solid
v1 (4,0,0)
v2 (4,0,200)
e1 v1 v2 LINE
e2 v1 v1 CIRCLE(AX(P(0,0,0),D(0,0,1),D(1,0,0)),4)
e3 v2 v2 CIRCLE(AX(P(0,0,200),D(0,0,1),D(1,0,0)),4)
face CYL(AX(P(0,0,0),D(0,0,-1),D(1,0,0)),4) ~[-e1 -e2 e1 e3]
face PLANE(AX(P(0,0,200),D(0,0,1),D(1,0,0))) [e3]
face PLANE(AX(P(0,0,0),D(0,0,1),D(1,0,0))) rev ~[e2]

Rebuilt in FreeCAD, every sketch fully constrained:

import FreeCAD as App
import Part
import Sketcher
Q = App.Units.Quantity

doc = App.newDocument("Part")
params = doc.addObject("Spreadsheet::Sheet", "Params")
for row, (alias, value) in enumerate([
    ("sketch1_diameter", "8 mm"),
    ("pad1_length", "200 mm"),
], start=1):
    params.set(f"A{row}", alias)
    params.set(f"B{row}", "=" + value)
    params.setAlias(f"B{row}", alias)

body = doc.addObject("PartDesign::Body", "Body")

sketch1 = doc.addObject("Sketcher::SketchObject", "Sketch")
body.addObject(sketch1)
sketch1.AttachmentSupport = (doc.XY_Plane, [""])
sketch1.MapMode = "FlatFace"
sketch1.addGeometry(Part.Circle(App.Vector(0, 0, 0), App.Vector(0, 0, 1), 4), False)
sketch1.addConstraint([
    Sketcher.Constraint("Coincident", 0, 3, -1, 1),
    Sketcher.Constraint("Diameter", 0, Q("8 mm")),
])
sketch1.setExpression("Constraints[1]", "Params.sketch1_diameter")
pad1 = doc.addObject("PartDesign::Pad", "Pad")
body.addObject(pad1)
pad1.Profile = sketch1
pad1.setExpression("Length", "Params.pad1_length")

doc.recompute()
